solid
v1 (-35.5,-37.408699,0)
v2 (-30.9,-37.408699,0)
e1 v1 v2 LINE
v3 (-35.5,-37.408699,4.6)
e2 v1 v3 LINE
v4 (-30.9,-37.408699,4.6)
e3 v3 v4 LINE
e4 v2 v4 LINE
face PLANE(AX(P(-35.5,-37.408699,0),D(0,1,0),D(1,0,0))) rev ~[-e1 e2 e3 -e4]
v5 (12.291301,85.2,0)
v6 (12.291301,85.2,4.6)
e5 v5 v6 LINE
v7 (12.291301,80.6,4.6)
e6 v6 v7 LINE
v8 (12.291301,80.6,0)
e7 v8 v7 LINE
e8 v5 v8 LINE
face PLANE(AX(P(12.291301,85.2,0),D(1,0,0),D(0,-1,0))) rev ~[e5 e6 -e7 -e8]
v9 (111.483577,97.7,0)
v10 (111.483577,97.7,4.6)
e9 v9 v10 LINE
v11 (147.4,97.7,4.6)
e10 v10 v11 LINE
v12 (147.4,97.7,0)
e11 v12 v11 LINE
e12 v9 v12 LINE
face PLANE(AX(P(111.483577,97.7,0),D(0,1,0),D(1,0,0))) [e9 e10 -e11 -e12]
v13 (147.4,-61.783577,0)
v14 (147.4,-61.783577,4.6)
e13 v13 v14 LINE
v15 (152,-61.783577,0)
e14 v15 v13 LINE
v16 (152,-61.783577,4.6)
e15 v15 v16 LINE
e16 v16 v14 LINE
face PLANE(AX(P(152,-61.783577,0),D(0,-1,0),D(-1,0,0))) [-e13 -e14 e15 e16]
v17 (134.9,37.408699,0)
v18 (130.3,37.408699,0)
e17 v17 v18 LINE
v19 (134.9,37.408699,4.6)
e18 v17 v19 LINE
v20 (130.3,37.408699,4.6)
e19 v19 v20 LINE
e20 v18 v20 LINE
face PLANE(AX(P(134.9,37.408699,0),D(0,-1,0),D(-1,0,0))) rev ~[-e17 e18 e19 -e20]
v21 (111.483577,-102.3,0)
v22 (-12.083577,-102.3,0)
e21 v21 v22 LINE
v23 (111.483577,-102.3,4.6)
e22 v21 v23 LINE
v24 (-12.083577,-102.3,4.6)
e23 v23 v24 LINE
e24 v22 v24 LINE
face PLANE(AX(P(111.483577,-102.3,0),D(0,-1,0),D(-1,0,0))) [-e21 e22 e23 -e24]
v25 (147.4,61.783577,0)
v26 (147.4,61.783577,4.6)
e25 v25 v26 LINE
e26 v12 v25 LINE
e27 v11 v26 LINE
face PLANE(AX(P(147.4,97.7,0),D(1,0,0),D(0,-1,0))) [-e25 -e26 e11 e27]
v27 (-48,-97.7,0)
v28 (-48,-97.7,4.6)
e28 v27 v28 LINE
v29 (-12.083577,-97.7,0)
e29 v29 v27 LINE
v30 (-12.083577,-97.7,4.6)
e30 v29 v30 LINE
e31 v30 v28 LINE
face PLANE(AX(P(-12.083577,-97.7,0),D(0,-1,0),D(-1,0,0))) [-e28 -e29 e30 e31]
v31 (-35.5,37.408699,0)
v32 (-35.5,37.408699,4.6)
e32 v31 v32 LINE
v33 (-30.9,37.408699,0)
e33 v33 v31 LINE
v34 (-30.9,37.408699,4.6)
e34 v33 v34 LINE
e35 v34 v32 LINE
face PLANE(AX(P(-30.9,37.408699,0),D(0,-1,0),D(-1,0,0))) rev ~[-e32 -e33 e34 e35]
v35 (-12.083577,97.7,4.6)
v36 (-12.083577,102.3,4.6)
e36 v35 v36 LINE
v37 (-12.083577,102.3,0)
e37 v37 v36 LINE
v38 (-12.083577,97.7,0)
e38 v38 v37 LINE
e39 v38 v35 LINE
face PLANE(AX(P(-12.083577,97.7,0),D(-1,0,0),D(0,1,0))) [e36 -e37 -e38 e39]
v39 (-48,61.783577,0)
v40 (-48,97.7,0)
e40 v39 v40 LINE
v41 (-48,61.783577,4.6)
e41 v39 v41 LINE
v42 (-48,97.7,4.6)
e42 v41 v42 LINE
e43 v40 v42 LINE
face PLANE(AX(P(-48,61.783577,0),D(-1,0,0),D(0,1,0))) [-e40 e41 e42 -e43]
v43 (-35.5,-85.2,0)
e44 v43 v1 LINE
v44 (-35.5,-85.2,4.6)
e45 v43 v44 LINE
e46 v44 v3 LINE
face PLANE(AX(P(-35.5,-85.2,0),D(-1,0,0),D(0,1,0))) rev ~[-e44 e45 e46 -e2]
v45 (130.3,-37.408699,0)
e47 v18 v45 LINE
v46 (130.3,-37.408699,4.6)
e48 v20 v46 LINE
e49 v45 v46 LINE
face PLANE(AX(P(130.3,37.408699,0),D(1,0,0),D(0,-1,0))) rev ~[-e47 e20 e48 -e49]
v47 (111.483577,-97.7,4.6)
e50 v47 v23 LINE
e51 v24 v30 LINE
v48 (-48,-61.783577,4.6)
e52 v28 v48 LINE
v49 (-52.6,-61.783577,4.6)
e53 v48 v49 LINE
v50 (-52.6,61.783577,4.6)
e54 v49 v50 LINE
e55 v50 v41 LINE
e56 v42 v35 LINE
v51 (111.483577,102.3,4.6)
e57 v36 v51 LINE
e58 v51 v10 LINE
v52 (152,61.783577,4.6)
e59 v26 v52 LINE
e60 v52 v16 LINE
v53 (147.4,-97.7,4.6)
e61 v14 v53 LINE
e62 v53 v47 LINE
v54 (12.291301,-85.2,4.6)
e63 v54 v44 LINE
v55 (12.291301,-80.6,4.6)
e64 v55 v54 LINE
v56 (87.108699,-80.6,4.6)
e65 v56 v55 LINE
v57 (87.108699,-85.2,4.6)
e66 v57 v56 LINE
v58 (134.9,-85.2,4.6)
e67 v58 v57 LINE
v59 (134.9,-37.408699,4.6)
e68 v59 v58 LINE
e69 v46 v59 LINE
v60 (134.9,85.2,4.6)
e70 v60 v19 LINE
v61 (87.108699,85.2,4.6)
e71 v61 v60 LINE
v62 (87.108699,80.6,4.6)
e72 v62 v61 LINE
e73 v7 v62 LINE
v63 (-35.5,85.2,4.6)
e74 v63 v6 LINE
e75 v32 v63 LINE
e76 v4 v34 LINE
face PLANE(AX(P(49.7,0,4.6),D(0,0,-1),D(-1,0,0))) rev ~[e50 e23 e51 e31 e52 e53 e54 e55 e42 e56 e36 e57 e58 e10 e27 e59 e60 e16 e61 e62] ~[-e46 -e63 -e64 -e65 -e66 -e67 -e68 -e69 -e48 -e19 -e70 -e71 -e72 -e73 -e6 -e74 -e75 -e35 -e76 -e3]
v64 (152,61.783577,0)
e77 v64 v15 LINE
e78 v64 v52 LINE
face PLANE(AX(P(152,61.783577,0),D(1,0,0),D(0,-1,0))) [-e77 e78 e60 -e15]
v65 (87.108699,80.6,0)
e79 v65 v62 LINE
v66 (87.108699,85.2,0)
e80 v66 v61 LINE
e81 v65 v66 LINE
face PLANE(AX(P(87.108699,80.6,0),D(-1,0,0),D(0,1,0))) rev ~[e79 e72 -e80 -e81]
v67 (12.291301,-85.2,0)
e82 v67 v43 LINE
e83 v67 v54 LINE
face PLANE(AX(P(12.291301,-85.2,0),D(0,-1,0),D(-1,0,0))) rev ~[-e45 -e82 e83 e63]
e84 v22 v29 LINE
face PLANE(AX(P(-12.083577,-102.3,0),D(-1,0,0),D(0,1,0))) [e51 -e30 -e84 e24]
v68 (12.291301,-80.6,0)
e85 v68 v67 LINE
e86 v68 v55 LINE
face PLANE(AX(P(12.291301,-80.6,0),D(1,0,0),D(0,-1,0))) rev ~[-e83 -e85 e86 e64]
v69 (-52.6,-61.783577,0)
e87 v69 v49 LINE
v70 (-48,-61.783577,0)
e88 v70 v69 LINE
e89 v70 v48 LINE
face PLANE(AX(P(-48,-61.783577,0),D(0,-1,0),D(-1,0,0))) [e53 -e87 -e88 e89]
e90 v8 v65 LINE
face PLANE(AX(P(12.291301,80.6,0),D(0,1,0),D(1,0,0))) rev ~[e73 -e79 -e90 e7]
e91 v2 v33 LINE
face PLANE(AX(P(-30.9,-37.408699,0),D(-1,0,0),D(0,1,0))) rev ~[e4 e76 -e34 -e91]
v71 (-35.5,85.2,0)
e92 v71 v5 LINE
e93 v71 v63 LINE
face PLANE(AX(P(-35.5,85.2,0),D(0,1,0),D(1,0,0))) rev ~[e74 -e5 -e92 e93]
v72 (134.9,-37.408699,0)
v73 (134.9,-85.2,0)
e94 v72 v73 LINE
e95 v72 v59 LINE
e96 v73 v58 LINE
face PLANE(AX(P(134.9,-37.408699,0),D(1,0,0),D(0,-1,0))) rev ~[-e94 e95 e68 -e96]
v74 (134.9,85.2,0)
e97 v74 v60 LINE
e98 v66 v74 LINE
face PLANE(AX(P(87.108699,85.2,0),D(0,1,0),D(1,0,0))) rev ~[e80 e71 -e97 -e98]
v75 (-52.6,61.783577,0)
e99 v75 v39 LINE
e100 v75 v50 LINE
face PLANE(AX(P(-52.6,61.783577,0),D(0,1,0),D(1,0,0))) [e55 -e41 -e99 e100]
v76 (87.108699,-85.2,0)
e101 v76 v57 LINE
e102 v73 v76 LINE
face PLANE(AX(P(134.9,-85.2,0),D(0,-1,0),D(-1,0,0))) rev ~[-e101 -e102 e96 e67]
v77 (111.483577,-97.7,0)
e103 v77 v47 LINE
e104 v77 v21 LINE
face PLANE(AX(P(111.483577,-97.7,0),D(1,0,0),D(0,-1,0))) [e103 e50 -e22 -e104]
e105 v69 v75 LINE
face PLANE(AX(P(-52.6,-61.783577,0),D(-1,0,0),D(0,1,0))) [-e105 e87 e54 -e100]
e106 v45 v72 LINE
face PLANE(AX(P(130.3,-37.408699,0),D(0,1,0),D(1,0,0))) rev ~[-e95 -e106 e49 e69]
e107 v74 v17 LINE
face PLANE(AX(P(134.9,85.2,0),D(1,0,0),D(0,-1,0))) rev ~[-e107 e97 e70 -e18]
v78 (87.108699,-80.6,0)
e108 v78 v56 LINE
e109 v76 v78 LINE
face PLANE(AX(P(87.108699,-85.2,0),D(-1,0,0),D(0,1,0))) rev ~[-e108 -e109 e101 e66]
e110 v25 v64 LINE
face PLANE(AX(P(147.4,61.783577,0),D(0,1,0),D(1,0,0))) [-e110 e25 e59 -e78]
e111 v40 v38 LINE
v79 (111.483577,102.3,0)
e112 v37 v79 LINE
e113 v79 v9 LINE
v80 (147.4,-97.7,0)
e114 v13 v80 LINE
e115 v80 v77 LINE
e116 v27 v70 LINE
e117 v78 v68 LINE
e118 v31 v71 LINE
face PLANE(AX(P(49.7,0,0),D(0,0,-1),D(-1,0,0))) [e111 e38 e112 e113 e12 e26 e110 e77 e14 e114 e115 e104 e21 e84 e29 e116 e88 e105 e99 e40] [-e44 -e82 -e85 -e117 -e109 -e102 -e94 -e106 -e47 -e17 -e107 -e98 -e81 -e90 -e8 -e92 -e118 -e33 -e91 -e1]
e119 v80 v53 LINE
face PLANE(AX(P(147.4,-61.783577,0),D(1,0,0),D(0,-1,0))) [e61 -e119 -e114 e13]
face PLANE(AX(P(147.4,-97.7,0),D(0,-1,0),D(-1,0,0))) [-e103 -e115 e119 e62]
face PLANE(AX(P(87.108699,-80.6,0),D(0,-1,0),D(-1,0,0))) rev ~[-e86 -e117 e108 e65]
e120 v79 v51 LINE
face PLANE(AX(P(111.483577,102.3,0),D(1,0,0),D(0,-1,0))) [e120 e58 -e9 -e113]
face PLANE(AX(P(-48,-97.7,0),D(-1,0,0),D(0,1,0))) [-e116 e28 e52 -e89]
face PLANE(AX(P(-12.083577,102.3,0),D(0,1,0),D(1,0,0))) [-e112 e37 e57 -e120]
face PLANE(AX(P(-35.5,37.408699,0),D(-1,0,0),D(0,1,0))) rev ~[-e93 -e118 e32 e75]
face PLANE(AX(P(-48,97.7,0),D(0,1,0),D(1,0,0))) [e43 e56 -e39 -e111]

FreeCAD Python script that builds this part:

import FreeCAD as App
import Part
import Sketcher

doc = App.newDocument("Part")
body = doc.addObject("PartDesign::Body", "Body")

sketch1 = body.newObject("Sketcher::SketchObject", "Sketch")
sketch1.AttachmentSupport = (doc.getObject("XY_Plane"), [""])
sketch1.MapMode = "FlatFace"
sketch1.addGeometry([
    Part.LineSegment(App.Vector(152, 61.8, 0), App.Vector(147.4, 61.8, 0)),
    Part.LineSegment(App.Vector(147.4, 61.8, 0), App.Vector(147.4, 97.7, 0)),
    Part.LineSegment(App.Vector(147.4, 97.7, 0), App.Vector(111.5, 97.7, 0)),
    Part.LineSegment(App.Vector(111.5, 97.7, 0), App.Vector(111.5, 102.3, 0)),
    Part.LineSegment(App.Vector(111.5, 102.3, 0), App.Vector(-12.1, 102.3, 0)),
    Part.LineSegment(App.Vector(-12.1, 102.3, 0), App.Vector(-12.1, 97.7, 0)),
    Part.LineSegment(App.Vector(-12.1, 97.7, 0), App.Vector(-48, 97.7, 0)),
    Part.LineSegment(App.Vector(-48, 97.7, 0), App.Vector(-48, 61.8, 0)),
    Part.LineSegment(App.Vector(-48, 61.8, 0), App.Vector(-52.6, 61.8, 0)),
    Part.LineSegment(App.Vector(-52.6, 61.8, 0), App.Vector(-52.6, -61.8, 0)),
    Part.LineSegment(App.Vector(-52.6, -61.8, 0), App.Vector(-48, -61.8, 0)),
    Part.LineSegment(App.Vector(-48, -61.8, 0), App.Vector(-48, -97.7, 0)),
    Part.LineSegment(App.Vector(-48, -97.7, 0), App.Vector(-12.1, -97.7, 0)),
    Part.LineSegment(App.Vector(-12.1, -97.7, 0), App.Vector(-12.1, -102.3, 0)),
    Part.LineSegment(App.Vector(-12.1, -102.3, 0), App.Vector(111.5, -102.3, 0)),
    Part.LineSegment(App.Vector(111.5, -102.3, 0), App.Vector(111.5, -97.7, 0)),
    Part.LineSegment(App.Vector(111.5, -97.7, 0), App.Vector(147.4, -97.7, 0)),
    Part.LineSegment(App.Vector(147.4, -97.7, 0), App.Vector(147.4, -61.8, 0)),
    Part.LineSegment(App.Vector(147.4, -61.8, 0), App.Vector(152, -61.8, 0)),
    Part.LineSegment(App.Vector(152, -61.8, 0), App.Vector(152, 61.8, 0)),
], False)
sketch1.addConstraint([
    Sketcher.Constraint("Coincident", 0, 2, 1, 1),
    Sketcher.Constraint("Coincident", 1, 2, 2, 1),
    Sketcher.Constraint("Coincident", 2, 2, 3, 1),
    Sketcher.Constraint("Coincident", 3, 2, 4, 1),
    Sketcher.Constraint("Coincident", 4, 2, 5, 1),
    Sketcher.Constraint("Coincident", 5, 2, 6, 1),
    Sketcher.Constraint("Coincident", 6, 2, 7, 1),
    Sketcher.Constraint("Coincident", 7, 2, 8, 1),
    Sketcher.Constraint("Coincident", 8, 2, 9, 1),
    Sketcher.Constraint("Coincident", 9, 2, 10, 1),
    Sketcher.Constraint("Coincident", 10, 2, 11, 1),
    Sketcher.Constraint("Coincident", 11, 2, 12, 1),
    Sketcher.Constraint("Coincident", 12, 2, 13, 1),
    Sketcher.Constraint("Coincident", 13, 2, 14, 1),
    Sketcher.Constraint("Coincident", 14, 2, 15, 1),
    Sketcher.Constraint("Coincident", 15, 2, 16, 1),
    Sketcher.Constraint("Coincident", 16, 2, 17, 1),
    Sketcher.Constraint("Coincident", 17, 2, 18, 1),
    Sketcher.Constraint("Coincident", 18, 2, 19, 1),
    Sketcher.Constraint("Coincident", 19, 2, 0, 1),
    Sketcher.Constraint("Horizontal", 0),
    Sketcher.Constraint("Vertical", 1),
    Sketcher.Constraint("Horizontal", 2),
    Sketcher.Constraint("Vertical", 3),
    Sketcher.Constraint("Horizontal", 4),
    Sketcher.Constraint("Vertical", 5),
    Sketcher.Constraint("Horizontal", 6),
    Sketcher.Constraint("Vertical", 7),
    Sketcher.Constraint("Horizontal", 8),
    Sketcher.Constraint("Vertical", 9),
    Sketcher.Constraint("Horizontal", 10),
    Sketcher.Constraint("Vertical", 11),
    Sketcher.Constraint("Horizontal", 12),
    Sketcher.Constraint("Vertical", 13),
    Sketcher.Constraint("Horizontal", 14),
    Sketcher.Constraint("Vertical", 15),
    Sketcher.Constraint("Horizontal", 16),
    Sketcher.Constraint("Vertical", 17),
    Sketcher.Constraint("Horizontal", 18),
    Sketcher.Constraint("Vertical", 19),
    Sketcher.Constraint("Symmetric", 7, 2, 10, 2, -1),
    Sketcher.Constraint("Symmetric", 5, 2, 12, 2, -1),
    Sketcher.Constraint("Symmetric", 3, 2, 14, 2, -1),
    Sketcher.Constraint("Symmetric", 1, 2, 16, 2, -1),
    Sketcher.Constraint("Horizontal", 2, 2, 5, 2),
    Sketcher.Constraint("Horizontal", 0, 2, 7, 2),
    Sketcher.Constraint("Horizontal", 10, 2, 17, 2),
    Sketcher.Constraint("Equal", 2, 6),
    Sketcher.Constraint("Equal", 0, 8),
    Sketcher.Constraint("Equal", 16, 1),
    Sketcher.Constraint("Equal", 18, 3),
    Sketcher.Constraint("Equal", 14, 9),
    Sketcher.Constraint("DistanceX", 0, 2, 0, 1, 4.6),
    Sketcher.Constraint("DistanceX", 6, 2, -1, 1, 48.0),
    Sketcher.Constraint("DistanceX", -1, 1, 18, 2, 152.0),
    Sketcher.Constraint("DistanceX", 2, 2, 2, 1, 35.916423),
])
pad1 = body.newObject("PartDesign::Pad", "Pad")
pad1.Profile = sketch1
pad1.Length = 4.6

sketch2 = body.newObject("Sketcher::SketchObject", "Sketch001")
sketch2.AttachmentSupport = (doc.getObject("XY_Plane"), [""])
sketch2.MapMode = "FlatFace"
sketch2.addGeometry([
    Part.LineSegment(App.Vector(134.9, -85.2, 0), App.Vector(87.1, -85.2, 0)),
    Part.LineSegment(App.Vector(87.1, -85.2, 0), App.Vector(87.1, -80.6, 0)),
    Part.LineSegment(App.Vector(87.1, -80.6, 0), App.Vector(12.3, -80.6, 0)),
    Part.LineSegment(App.Vector(12.3, -80.6, 0), App.Vector(12.3, -85.2, 0)),
    Part.LineSegment(App.Vector(12.3, -85.2, 0), App.Vector(-35.5, -85.2, 0)),
    Part.LineSegment(App.Vector(-35.5, -85.2, 0), App.Vector(-35.5, -37.4, 0)),
    Part.LineSegment(App.Vector(-35.5, -37.4, 0), App.Vector(-30.9, -37.4, 0)),
    Part.LineSegment(App.Vector(-30.9, -37.4, 0), App.Vector(-30.9, 37.4, 0)),
    Part.LineSegment(App.Vector(-30.9, 37.4, 0), App.Vector(-35.5, 37.4, 0)),
    Part.LineSegment(App.Vector(-35.5, 37.4, 0), App.Vector(-35.5, 85.2, 0)),
    Part.LineSegment(App.Vector(-35.5, 85.2, 0), App.Vector(12.3, 85.2, 0)),
    Part.LineSegment(App.Vector(12.3, 85.2, 0), App.Vector(12.3, 80.6, 0)),
    Part.LineSegment(App.Vector(12.3, 80.6, 0), App.Vector(87.1, 80.6, 0)),
    Part.LineSegment(App.Vector(87.1, 80.6, 0), App.Vector(87.1, 85.2, 0)),
    Part.LineSegment(App.Vector(87.1, 85.2, 0), App.Vector(134.9, 85.2, 0)),
    Part.LineSegment(App.Vector(134.9, 85.2, 0), App.Vector(134.9, 37.4, 0)),
    Part.LineSegment(App.Vector(134.9, 37.4, 0), App.Vector(130.3, 37.4, 0)),
    Part.LineSegment(App.Vector(130.3, 37.4, 0), App.Vector(130.3, -37.4, 0)),
    Part.LineSegment(App.Vector(130.3, -37.4, 0), App.Vector(134.9, -37.4, 0)),
    Part.LineSegment(App.Vector(134.9, -37.4, 0), App.Vector(134.9, -85.2, 0)),
], False)
sketch2.addConstraint([
    Sketcher.Constraint("Coincident", 0, 2, 1, 1),
    Sketcher.Constraint("Coincident", 1, 2, 2, 1),
    Sketcher.Constraint("Coincident", 2, 2, 3, 1),
    Sketcher.Constraint("Coincident", 3, 2, 4, 1),
    Sketcher.Constraint("Coincident", 4, 2, 5, 1),
    Sketcher.Constraint("Coincident", 5, 2, 6, 1),
    Sketcher.Constraint("Coincident", 6, 2, 7, 1),
    Sketcher.Constraint("Coincident", 7, 2, 8, 1),
    Sketcher.Constraint("Coincident", 8, 2, 9, 1),
    Sketcher.Constraint("Coincident", 9, 2, 10, 1),
    Sketcher.Constraint("Coincident", 10, 2, 11, 1),
    Sketcher.Constraint("Coincident", 11, 2, 12, 1),
    Sketcher.Constraint("Coincident", 12, 2, 13, 1),
    Sketcher.Constraint("Coincident", 13, 2, 14, 1),
    Sketcher.Constraint("Coincident", 14, 2, 15, 1),
    Sketcher.Constraint("Coincident", 15, 2, 16, 1),
    Sketcher.Constraint("Coincident", 16, 2, 17, 1),
    Sketcher.Constraint("Coincident", 17, 2, 18, 1),
    Sketcher.Constraint("Coincident", 18, 2, 19, 1),
    Sketcher.Constraint("Coincident", 19, 2, 0, 1),
    Sketcher.Constraint("Horizontal", 0),
    Sketcher.Constraint("Vertical", 1),
    Sketcher.Constraint("Horizontal", 2),
    Sketcher.Constraint("Vertical", 3),
    Sketcher.Constraint("Horizontal", 4),
    Sketcher.Constraint("Vertical", 5),
    Sketcher.Constraint("Horizontal", 6),
    Sketcher.Constraint("Vertical", 7),
    Sketcher.Constraint("Horizontal", 8),
    Sketcher.Constraint("Vertical", 9),
    Sketcher.Constraint("Horizontal", 10),
    Sketcher.Constraint("Vertical", 11),
    Sketcher.Constraint("Horizontal", 12),
    Sketcher.Constraint("Vertical", 13),
    Sketcher.Constraint("Horizontal", 14),
    Sketcher.Constraint("Vertical", 15),
    Sketcher.Constraint("Horizontal", 16),
    Sketcher.Constraint("Vertical", 17),
    Sketcher.Constraint("Horizontal", 18),
    Sketcher.Constraint("Vertical", 19),
    Sketcher.Constraint("Symmetric", 5, 2, 8, 2, -1),
    Sketcher.Constraint("Symmetric", 3, 2, 10, 2, -1),
    Sketcher.Constraint("Symmetric", 1, 2, 12, 2, -1),
    Sketcher.Constraint("Symmetric", 15, 2, 18, 2, -1),
    Sketcher.Constraint("Horizontal", 0, 2, 3, 2),
    Sketcher.Constraint("Horizontal", 10, 2, 13, 2),
    Sketcher.Constraint("Horizontal", 8, 2, 15, 2),
    Sketcher.Constraint("Equal", 0, 4),
    Sketcher.Constraint("Equal", 8, 16),
    Sketcher.Constraint("Equal", 18, 1),
    Sketcher.Constraint("Equal", 14, 5),
    Sketcher.Constraint("Equal", 12, 7),
    Sketcher.Constraint("DistanceX", 6, 1, 6, 2, 4.6),
    Sketcher.Constraint("DistanceY", 0, 2, -1, 1, 85.2),
    Sketcher.Constraint("DistanceX", 4, 2, -1, 1, 35.5),
    Sketcher.Constraint("DistanceX", 0, 2, 0, 1, 47.791301),
])
pocket1 = body.newObject("PartDesign::Pocket", "Pocket")
pocket1.Profile = sketch2
pocket1.Type = "ThroughAll"
pocket1.Reversed = True

doc.recompute()
